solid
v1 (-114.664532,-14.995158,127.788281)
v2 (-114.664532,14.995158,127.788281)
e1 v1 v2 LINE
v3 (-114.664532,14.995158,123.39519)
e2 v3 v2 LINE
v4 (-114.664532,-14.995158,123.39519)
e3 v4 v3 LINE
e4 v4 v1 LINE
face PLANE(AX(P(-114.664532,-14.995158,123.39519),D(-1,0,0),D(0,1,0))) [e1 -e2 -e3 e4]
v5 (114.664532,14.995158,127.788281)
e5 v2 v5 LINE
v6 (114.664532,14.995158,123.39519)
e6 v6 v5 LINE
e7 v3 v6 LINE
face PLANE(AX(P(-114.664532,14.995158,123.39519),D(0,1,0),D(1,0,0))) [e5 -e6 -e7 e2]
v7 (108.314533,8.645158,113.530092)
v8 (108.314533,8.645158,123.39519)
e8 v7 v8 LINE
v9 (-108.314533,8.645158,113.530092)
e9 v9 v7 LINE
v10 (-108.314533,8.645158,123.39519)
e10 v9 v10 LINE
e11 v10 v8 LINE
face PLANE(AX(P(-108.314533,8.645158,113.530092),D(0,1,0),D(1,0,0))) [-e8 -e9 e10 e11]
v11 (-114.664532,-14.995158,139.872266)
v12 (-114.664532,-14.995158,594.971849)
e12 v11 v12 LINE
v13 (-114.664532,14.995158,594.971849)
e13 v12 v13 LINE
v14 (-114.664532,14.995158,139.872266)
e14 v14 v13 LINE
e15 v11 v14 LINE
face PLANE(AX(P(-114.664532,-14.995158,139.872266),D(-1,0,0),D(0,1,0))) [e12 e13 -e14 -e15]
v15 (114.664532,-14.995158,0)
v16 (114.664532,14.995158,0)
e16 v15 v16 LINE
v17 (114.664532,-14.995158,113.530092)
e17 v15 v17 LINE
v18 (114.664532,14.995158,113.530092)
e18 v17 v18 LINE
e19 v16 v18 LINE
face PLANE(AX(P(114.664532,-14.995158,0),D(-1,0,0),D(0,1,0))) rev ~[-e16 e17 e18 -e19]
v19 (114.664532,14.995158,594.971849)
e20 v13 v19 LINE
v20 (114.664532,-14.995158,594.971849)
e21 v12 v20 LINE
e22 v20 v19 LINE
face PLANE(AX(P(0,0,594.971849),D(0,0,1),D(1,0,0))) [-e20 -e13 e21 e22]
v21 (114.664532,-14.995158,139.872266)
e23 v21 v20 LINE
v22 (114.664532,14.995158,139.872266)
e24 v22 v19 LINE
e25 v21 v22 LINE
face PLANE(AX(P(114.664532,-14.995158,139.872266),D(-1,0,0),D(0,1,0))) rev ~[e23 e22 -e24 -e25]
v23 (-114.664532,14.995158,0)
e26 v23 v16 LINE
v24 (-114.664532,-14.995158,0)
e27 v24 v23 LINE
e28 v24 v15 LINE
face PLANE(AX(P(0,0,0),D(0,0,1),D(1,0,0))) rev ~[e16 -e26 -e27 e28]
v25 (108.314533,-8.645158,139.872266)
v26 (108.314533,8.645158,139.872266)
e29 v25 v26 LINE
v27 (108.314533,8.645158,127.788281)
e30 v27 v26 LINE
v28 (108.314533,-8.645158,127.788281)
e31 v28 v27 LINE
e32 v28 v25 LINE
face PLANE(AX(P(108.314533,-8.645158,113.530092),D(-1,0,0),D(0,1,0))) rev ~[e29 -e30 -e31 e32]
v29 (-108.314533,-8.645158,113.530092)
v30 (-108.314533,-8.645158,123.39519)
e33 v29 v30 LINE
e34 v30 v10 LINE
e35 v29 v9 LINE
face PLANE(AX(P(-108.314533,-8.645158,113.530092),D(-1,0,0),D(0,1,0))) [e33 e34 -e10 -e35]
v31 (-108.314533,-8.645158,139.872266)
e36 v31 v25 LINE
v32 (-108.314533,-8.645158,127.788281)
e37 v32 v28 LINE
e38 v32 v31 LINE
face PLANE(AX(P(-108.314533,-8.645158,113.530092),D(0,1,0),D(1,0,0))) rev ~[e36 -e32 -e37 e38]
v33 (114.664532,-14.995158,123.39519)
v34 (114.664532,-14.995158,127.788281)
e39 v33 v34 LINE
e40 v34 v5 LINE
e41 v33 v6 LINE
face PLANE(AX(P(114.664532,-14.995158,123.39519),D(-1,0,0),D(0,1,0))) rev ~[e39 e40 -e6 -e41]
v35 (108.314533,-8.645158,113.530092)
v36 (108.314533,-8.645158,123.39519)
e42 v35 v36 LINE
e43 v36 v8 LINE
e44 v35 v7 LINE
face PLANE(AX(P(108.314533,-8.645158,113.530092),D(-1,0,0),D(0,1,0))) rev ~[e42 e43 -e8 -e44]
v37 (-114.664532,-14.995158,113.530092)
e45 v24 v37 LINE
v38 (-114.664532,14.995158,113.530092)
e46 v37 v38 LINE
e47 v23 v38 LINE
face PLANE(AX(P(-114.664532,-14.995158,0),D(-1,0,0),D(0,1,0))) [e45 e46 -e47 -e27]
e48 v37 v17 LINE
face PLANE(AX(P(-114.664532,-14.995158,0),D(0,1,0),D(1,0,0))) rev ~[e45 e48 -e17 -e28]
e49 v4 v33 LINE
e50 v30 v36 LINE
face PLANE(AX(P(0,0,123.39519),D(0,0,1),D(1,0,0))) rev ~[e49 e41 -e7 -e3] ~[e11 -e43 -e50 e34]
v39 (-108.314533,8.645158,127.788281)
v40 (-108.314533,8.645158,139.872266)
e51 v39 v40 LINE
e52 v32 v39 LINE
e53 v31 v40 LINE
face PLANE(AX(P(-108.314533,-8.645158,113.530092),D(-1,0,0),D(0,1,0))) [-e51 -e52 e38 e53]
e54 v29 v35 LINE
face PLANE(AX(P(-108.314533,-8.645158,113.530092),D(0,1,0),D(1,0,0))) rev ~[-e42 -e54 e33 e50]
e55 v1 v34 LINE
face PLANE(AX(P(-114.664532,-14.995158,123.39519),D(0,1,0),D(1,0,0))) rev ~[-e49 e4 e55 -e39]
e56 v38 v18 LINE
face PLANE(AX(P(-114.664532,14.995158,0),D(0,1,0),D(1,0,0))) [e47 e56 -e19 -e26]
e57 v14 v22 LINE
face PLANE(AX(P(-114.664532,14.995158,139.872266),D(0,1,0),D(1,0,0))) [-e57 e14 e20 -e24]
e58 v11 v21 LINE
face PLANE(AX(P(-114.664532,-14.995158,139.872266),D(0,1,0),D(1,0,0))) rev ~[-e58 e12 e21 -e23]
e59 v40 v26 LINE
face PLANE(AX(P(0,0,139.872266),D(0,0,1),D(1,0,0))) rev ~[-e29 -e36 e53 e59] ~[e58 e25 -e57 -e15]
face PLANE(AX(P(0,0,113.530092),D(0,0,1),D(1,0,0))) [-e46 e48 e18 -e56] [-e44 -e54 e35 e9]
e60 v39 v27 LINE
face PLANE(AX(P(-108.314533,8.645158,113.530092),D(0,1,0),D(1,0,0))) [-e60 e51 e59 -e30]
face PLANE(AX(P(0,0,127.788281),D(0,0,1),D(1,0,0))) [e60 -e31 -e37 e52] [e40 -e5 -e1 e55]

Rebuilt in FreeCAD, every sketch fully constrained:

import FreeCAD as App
import Part
import Sketcher

doc = App.newDocument("Part")
body = doc.addObject("PartDesign::Body", "Body")

# Sketch on XY plane
sketch1 = body.newObject("Sketcher::SketchObject", "Sketch")
sketch1.AttachmentSupport = (doc.getObject("XY_Plane"), [""])
sketch1.MapMode = "FlatFace"
sketch1.addGeometry(Part.LineSegment(App.Vector(-115, 15, 0), App.Vector(-115, -15, 0)), False)
sketch1.addGeometry(Part.LineSegment(App.Vector(-115, -15, 0), App.Vector(115, -15, 0)), False)
sketch1.addGeometry(Part.LineSegment(App.Vector(115, -15, 0), App.Vector(115, 15, 0)), False)
sketch1.addGeometry(Part.LineSegment(App.Vector(115, 15, 0), App.Vector(-115, 15, 0)), False)
sketch1.addConstraint(Sketcher.Constraint("Coincident", 0, 2, 1, 1))
sketch1.addConstraint(Sketcher.Constraint("Coincident", 1, 2, 2, 1))
sketch1.addConstraint(Sketcher.Constraint("Coincident", 2, 2, 3, 1))
sketch1.addConstraint(Sketcher.Constraint("Coincident", 3, 2, 0, 1))
sketch1.addConstraint(Sketcher.Constraint("Vertical", 0))
sketch1.addConstraint(Sketcher.Constraint("Horizontal", 1))
sketch1.addConstraint(Sketcher.Constraint("Vertical", 2))
sketch1.addConstraint(Sketcher.Constraint("Horizontal", 3))
sketch1.addConstraint(Sketcher.Constraint("Symmetric", 0, 2, 2, 2, -1, 1))
sketch1.addConstraint(Sketcher.Constraint("DistanceX", 1, 1, 1, 2, 229.329064))
sketch1.addConstraint(Sketcher.Constraint("DistanceY", 0, 2, 0, 1, 29.990316))
pad1 = body.newObject("PartDesign::Pad", "Pad")
pad1.Profile = sketch1
pad1.Length = 113.530092

# Sketch on XY plane
sketch2 = body.newObject("Sketcher::SketchObject", "Sketch001")
sketch2.AttachmentSupport = (doc.getObject("XY_Plane"), [""])
sketch2.MapMode = "FlatFace"
sketch2.AttachmentOffset = App.Placement(App.Vector(0, 0, 113.530092), App.Rotation())
sketch2.addGeometry(Part.LineSegment(App.Vector(-108, 9, 0), App.Vector(-108, -9, 0)), False)
sketch2.addGeometry(Part.LineSegment(App.Vector(-108, -9, 0), App.Vector(108, -9, 0)), False)
sketch2.addGeometry(Part.LineSegment(App.Vector(108, -9, 0), App.Vector(108, 9, 0)), False)
sketch2.addGeometry(Part.LineSegment(App.Vector(108, 9, 0), App.Vector(-108, 9, 0)), False)
sketch2.addConstraint(Sketcher.Constraint("Coincident", 0, 2, 1, 1))
sketch2.addConstraint(Sketcher.Constraint("Coincident", 1, 2, 2, 1))
sketch2.addConstraint(Sketcher.Constraint("Coincident", 2, 2, 3, 1))
sketch2.addConstraint(Sketcher.Constraint("Coincident", 3, 2, 0, 1))
sketch2.addConstraint(Sketcher.Constraint("Vertical", 0))
sketch2.addConstraint(Sketcher.Constraint("Horizontal", 1))
sketch2.addConstraint(Sketcher.Constraint("Vertical", 2))
sketch2.addConstraint(Sketcher.Constraint("Horizontal", 3))
sketch2.addConstraint(Sketcher.Constraint("Symmetric", 0, 2, 2, 2, -1, 1))
sketch2.addConstraint(Sketcher.Constraint("DistanceX", 1, 1, 1, 2, 216.629066))
sketch2.addConstraint(Sketcher.Constraint("DistanceY", 0, 2, 0, 1, 17.290316))
pad2 = body.newObject("PartDesign::Pad", "Pad001")
pad2.Profile = sketch2
pad2.Length = 26.342174

# Sketch on XY plane
sketch3 = body.newObject("Sketcher::SketchObject", "Sketch002")
sketch3.AttachmentSupport = (doc.getObject("XY_Plane"), [""])
sketch3.MapMode = "FlatFace"
sketch3.AttachmentOffset = App.Placement(App.Vector(0, 0, 123.39519), App.Rotation())
sketch3.addGeometry(Part.LineSegment(App.Vector(-115, 15, 0), App.Vector(-115, -15, 0)), False)
sketch3.addGeometry(Part.LineSegment(App.Vector(-115, -15, 0), App.Vector(115, -15, 0)), False)
sketch3.addGeometry(Part.LineSegment(App.Vector(115, -15, 0), App.Vector(115, 15, 0)), False)
sketch3.addGeometry(Part.LineSegment(App.Vector(115, 15, 0), App.Vector(-115, 15, 0)), False)
sketch3.addConstraint(Sketcher.Constraint("Coincident", 0, 2, 1, 1))
sketch3.addConstraint(Sketcher.Constraint("Coincident", 1, 2, 2, 1))
sketch3.addConstraint(Sketcher.Constraint("Coincident", 2, 2, 3, 1))
sketch3.addConstraint(Sketcher.Constraint("Coincident", 3, 2, 0, 1))
sketch3.addConstraint(Sketcher.Constraint("Vertical", 0))
sketch3.addConstraint(Sketcher.Constraint("Horizontal", 1))
sketch3.addConstraint(Sketcher.Constraint("Vertical", 2))
sketch3.addConstraint(Sketcher.Constraint("Horizontal", 3))
sketch3.addConstraint(Sketcher.Constraint("Symmetric", 0, 2, 2, 2, -1, 1))
sketch3.addConstraint(Sketcher.Constraint("DistanceX", 1, 1, 1, 2, 229.329064))
sketch3.addConstraint(Sketcher.Constraint("DistanceY", 0, 2, 0, 1, 29.990316))
pad3 = body.newObject("PartDesign::Pad", "Pad002")
pad3.Profile = sketch3
pad3.Length = 4.393091

# Sketch on XY plane
sketch4 = body.newObject("Sketcher::SketchObject", "Sketch003")
sketch4.AttachmentSupport = (doc.getObject("XY_Plane"), [""])
sketch4.MapMode = "FlatFace"
sketch4.AttachmentOffset = App.Placement(App.Vector(0, 0, 139.872266), App.Rotation())
sketch4.addGeometry(Part.LineSegment(App.Vector(-115, 15, 0), App.Vector(-115, -15, 0)), False)
sketch4.addGeometry(Part.LineSegment(App.Vector(-115, -15, 0), App.Vector(115, -15, 0)), False)
sketch4.addGeometry(Part.LineSegment(App.Vector(115, -15, 0), App.Vector(115, 15, 0)), False)
sketch4.addGeometry(Part.LineSegment(App.Vector(115, 15, 0), App.Vector(-115, 15, 0)), False)
sketch4.addConstraint(Sketcher.Constraint("Coincident", 0, 2, 1, 1))
sketch4.addConstraint(Sketcher.Constraint("Coincident", 1, 2, 2, 1))
sketch4.addConstraint(Sketcher.Constraint("Coincident", 2, 2, 3, 1))
sketch4.addConstraint(Sketcher.Constraint("Coincident", 3, 2, 0, 1))
sketch4.addConstraint(Sketcher.Constraint("Vertical", 0))
sketch4.addConstraint(Sketcher.Constraint("Horizontal", 1))
sketch4.addConstraint(Sketcher.Constraint("Vertical", 2))
sketch4.addConstraint(Sketcher.Constraint("Horizontal", 3))
sketch4.addConstraint(Sketcher.Constraint("Symmetric", 0, 2, 2, 2, -1, 1))
sketch4.addConstraint(Sketcher.Constraint("DistanceX", 1, 1, 1, 2, 229.329064))
sketch4.addConstraint(Sketcher.Constraint("DistanceY", 0, 2, 0, 1, 29.990316))
pad4 = body.newObject("PartDesign::Pad", "Pad003")
pad4.Profile = sketch4
pad4.Length = 455.099583

doc.recompute()
